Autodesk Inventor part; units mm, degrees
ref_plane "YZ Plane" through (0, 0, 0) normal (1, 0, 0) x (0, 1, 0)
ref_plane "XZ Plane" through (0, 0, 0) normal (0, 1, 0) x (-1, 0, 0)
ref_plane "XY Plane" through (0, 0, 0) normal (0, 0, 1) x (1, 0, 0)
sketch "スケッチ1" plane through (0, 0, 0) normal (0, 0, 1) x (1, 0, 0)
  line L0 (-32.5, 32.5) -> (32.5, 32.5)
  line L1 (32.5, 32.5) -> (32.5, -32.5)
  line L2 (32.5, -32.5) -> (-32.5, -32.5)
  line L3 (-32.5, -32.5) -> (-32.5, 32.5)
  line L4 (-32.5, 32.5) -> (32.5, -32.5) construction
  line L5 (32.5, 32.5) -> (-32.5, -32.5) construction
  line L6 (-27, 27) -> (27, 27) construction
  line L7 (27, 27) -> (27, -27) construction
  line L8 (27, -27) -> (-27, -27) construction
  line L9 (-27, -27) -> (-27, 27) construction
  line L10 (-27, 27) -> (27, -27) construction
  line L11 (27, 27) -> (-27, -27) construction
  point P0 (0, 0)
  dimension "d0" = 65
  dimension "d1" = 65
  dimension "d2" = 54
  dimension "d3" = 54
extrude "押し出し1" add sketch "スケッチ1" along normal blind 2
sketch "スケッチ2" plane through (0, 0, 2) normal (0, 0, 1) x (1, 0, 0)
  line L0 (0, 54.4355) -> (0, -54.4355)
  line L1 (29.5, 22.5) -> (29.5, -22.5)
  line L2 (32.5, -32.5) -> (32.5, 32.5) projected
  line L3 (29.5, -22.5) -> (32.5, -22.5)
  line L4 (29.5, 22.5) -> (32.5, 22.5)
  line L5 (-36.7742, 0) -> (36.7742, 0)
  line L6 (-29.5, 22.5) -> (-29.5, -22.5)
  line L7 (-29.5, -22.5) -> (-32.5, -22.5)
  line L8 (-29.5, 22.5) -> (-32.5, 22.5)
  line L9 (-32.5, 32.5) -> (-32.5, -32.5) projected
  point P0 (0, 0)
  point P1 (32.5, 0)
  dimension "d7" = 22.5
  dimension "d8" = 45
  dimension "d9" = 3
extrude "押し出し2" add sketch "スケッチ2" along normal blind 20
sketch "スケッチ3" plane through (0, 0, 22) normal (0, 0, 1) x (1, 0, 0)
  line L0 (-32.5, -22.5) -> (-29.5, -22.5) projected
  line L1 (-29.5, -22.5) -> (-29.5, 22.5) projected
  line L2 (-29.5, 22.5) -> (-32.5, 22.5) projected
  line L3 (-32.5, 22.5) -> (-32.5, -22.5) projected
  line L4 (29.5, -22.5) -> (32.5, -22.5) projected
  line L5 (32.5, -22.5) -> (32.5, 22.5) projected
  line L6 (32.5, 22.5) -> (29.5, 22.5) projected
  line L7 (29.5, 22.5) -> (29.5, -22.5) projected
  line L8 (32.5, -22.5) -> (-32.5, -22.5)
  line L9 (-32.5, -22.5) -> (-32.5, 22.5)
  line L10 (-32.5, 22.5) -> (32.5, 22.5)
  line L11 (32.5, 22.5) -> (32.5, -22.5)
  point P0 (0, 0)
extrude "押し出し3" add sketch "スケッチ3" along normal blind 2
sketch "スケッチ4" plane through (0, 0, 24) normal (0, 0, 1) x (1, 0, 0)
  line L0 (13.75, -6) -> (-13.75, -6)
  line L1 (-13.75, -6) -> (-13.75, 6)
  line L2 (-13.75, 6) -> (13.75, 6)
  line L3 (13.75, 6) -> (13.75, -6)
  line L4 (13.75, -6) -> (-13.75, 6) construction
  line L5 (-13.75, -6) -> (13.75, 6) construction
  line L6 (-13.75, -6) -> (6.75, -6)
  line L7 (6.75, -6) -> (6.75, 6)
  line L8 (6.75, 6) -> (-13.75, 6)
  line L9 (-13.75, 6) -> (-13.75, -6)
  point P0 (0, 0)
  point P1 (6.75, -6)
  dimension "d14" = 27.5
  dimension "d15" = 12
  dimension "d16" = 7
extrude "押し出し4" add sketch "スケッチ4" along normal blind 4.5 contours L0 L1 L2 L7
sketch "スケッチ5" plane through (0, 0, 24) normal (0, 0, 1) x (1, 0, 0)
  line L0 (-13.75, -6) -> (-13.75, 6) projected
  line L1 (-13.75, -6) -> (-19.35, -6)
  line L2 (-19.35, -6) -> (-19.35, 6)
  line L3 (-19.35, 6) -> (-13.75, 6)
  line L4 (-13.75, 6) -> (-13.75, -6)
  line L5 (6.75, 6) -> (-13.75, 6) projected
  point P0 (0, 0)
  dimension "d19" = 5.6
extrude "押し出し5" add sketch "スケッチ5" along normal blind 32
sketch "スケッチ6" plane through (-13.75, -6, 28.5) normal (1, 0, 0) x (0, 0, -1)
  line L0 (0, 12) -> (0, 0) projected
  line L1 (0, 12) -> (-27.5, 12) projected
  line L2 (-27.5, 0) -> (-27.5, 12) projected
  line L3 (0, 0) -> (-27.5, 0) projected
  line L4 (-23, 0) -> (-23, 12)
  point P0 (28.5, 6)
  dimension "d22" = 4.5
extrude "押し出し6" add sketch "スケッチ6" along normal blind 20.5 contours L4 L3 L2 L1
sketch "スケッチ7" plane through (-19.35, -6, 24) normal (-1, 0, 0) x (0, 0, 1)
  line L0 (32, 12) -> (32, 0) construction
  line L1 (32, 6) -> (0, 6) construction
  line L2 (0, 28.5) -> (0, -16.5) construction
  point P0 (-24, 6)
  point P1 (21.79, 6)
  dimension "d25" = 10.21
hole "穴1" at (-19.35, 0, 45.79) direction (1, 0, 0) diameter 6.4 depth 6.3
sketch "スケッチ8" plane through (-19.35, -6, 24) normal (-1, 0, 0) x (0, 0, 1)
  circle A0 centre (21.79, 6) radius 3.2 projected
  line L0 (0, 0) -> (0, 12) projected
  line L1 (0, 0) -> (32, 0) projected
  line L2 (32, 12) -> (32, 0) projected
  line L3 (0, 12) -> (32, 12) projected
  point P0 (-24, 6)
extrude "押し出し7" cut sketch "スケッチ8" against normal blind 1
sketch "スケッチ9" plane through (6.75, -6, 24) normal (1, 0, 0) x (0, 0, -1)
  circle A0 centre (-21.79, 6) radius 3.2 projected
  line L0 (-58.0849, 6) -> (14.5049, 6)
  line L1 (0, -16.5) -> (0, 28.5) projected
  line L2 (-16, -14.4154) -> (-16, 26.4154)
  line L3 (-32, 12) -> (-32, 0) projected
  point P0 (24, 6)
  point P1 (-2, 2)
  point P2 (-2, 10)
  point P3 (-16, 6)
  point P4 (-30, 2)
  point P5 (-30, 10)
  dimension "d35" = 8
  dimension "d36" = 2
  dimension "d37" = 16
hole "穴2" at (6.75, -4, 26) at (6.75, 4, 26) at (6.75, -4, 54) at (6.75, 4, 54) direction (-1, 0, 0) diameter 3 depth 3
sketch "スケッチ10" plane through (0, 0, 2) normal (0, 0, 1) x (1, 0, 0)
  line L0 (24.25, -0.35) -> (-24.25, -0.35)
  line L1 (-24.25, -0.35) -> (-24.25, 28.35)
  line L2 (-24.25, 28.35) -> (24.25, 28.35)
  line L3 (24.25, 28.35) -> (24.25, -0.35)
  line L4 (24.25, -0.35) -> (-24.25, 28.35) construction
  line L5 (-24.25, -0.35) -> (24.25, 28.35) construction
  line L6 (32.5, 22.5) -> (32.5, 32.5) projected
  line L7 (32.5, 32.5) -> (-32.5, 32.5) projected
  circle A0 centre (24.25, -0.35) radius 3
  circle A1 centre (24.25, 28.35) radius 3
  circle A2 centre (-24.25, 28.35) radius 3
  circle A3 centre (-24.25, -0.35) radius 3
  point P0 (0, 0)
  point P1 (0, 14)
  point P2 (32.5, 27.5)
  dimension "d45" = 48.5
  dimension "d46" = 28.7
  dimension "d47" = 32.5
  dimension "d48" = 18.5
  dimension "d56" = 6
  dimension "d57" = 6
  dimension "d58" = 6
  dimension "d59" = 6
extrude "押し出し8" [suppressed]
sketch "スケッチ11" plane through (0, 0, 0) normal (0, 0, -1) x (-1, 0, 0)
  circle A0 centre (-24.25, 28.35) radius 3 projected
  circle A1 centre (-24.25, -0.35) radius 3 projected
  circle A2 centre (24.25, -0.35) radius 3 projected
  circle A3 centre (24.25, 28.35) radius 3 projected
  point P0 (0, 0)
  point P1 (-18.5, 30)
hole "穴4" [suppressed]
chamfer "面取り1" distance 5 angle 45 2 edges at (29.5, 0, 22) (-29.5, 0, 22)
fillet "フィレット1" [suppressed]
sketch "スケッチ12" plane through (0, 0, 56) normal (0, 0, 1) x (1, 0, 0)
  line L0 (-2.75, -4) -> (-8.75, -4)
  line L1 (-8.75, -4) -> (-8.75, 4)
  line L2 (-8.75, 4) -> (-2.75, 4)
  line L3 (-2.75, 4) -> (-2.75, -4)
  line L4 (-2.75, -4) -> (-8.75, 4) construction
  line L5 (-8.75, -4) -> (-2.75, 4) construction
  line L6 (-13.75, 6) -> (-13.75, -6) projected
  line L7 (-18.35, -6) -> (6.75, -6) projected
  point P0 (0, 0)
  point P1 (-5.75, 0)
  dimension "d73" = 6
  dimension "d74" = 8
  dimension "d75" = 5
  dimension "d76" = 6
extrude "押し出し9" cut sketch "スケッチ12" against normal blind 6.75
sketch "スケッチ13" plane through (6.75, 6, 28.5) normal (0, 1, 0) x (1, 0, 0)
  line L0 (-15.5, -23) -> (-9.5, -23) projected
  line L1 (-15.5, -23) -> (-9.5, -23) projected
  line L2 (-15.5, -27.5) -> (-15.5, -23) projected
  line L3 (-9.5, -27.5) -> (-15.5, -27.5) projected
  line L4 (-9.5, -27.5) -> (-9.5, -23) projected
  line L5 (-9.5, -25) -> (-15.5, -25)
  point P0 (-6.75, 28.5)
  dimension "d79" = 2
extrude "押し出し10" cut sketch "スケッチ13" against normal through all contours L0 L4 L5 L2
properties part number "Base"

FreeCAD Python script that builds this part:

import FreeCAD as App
import Part
import Sketcher
from FreeCAD import Vector


def edges_at(feature, points):
    """Names of the edges that pass closest to the given points."""
    edges = feature.Shape.Edges
    near = lambda p: min(range(len(edges)), key=lambda i: edges[i].distToShape(Part.Vertex(*p))[0])
    return sorted({f"Edge{near(p) + 1}" for p in points})


def add_polygon(sketch, points):
    """Adds a closed chain of lines whose ends are joined by coincident constraints."""
    first, n = sketch.GeometryCount, len(points)
    for a, b in zip(points, points[1:] + points[:1]):
        sketch.addGeometry(Part.LineSegment(App.Vector(*a, 0), App.Vector(*b, 0)), False)
    for i in range(n):
        sketch.addConstraint(Sketcher.Constraint("Coincident", first + i, 2, first + (i + 1) % n, 1))

doc = App.newDocument("Part")
body = doc.addObject("PartDesign::Body", "Body")

# Sketch on XY plane
sketch1 = body.newObject("Sketcher::SketchObject", "Sketch")
sketch1.AttachmentSupport = (doc.getObject("XY_Plane"), [""])
sketch1.MapMode = "FlatFace"
add_polygon(sketch1, [(32, 32), (-32, 32), (-32, -32), (32, -32)])  # lines 0-3
sketch1.addConstraint(Sketcher.Constraint("Horizontal", 0))
sketch1.addConstraint(Sketcher.Constraint("Vertical", 1))
sketch1.addConstraint(Sketcher.Constraint("Horizontal", 2))
sketch1.addConstraint(Sketcher.Constraint("Vertical", 3))
sketch1.addConstraint(Sketcher.Constraint("Symmetric", 0, 2, 2, 2, -1, 1))
sketch1.addConstraint(Sketcher.Constraint("Equal", 2, 1))
sketch1.addConstraint(Sketcher.Constraint("DistanceX", 0, 2, 0, 1, 65.0))
pad1 = body.newObject("PartDesign::Pad", "Pad")
pad1.Profile = sketch1
pad1.Length = 2

# Sketch on XY plane
sketch2 = body.newObject("Sketcher::SketchObject", "Sketch001")
sketch2.AttachmentSupport = (doc.getObject("XY_Plane"), [""])
sketch2.MapMode = "FlatFace"
sketch2.AttachmentOffset = App.Placement(Vector(0, 0, 2), App.Rotation())
add_polygon(sketch2, [(32.5, 22.5), (29.5, 22.5), (29.5, -22.5), (32.5, -22.5)])  # lines 0-3
add_polygon(sketch2, [(-29.5, -22.5), (-29.5, 22.5), (-32.5, 22.5), (-32.5, -22.5)])  # lines 4-7
sketch2.addConstraint(Sketcher.Constraint("Horizontal", 0))
sketch2.addConstraint(Sketcher.Constraint("Vertical", 1))
sketch2.addConstraint(Sketcher.Constraint("Horizontal", 2))
sketch2.addConstraint(Sketcher.Constraint("Vertical", 3))
sketch2.addConstraint(Sketcher.Constraint("Vertical", 4))
sketch2.addConstraint(Sketcher.Constraint("Horizontal", 5))
sketch2.addConstraint(Sketcher.Constraint("Vertical", 6))
sketch2.addConstraint(Sketcher.Constraint("Horizontal", 7))
sketch2.addConstraint(Sketcher.Constraint("Symmetric", 1, 2, 4, 2, -1, 1))
sketch2.addConstraint(Sketcher.Constraint("Symmetric", 3, 2, 6, 2, -1, 1))
sketch2.addConstraint(Sketcher.Constraint("Horizontal", 3, 2, 4, 2))
sketch2.addConstraint(Sketcher.Constraint("DistanceX", 0, 2, 0, 1, 3.0))
sketch2.addConstraint(Sketcher.Constraint("DistanceY", 1, 2, 1, 1, 45.0))
sketch2.addConstraint(Sketcher.Constraint("DistanceX", 4, 2, 0, 2, 59.0))
pad2 = body.newObject("PartDesign::Pad", "Pad001")
pad2.Profile = sketch2
pad2.Length = 20

# Sketch on XY plane
sketch3 = body.newObject("Sketcher::SketchObject", "Sketch002")
sketch3.AttachmentSupport = (doc.getObject("XY_Plane"), [""])
sketch3.MapMode = "FlatFace"
sketch3.AttachmentOffset = App.Placement(Vector(0, 0, 22), App.Rotation())
add_polygon(sketch3, [(-32, 22), (-32, -22), (32, -22), (32, 22)])  # lines 0-3
sketch3.addConstraint(Sketcher.Constraint("Vertical", 0))
sketch3.addConstraint(Sketcher.Constraint("Horizontal", 1))
sketch3.addConstraint(Sketcher.Constraint("Vertical", 2))
sketch3.addConstraint(Sketcher.Constraint("Horizontal", 3))
sketch3.addConstraint(Sketcher.Constraint("Symmetric", 0, 2, 2, 2, -1, 1))
sketch3.addConstraint(Sketcher.Constraint("DistanceX", 1, 1, 1, 2, 65.0))
sketch3.addConstraint(Sketcher.Constraint("DistanceY", 0, 2, 0, 1, 45.0))
pad3 = body.newObject("PartDesign::Pad", "Pad002")
pad3.Profile = sketch3
pad3.Length = 2

# Sketch on XY plane
sketch4 = body.newObject("Sketcher::SketchObject", "Sketch003")
sketch4.AttachmentSupport = (doc.getObject("XY_Plane"), [""])
sketch4.MapMode = "FlatFace"
sketch4.AttachmentOffset = App.Placement(Vector(0, 0, 24), App.Rotation())
add_polygon(sketch4, [(-14, -6), (7, -6), (7, 6), (-14, 6)])  # lines 0-3
sketch4.addConstraint(Sketcher.Constraint("Horizontal", 0))
sketch4.addConstraint(Sketcher.Constraint("Vertical", 1))
sketch4.addConstraint(Sketcher.Constraint("Horizontal", 2))
sketch4.addConstraint(Sketcher.Constraint("Vertical", 3))
sketch4.addConstraint(Sketcher.Constraint("DistanceY", 1, 1, 1, 2, 12.0))
sketch4.addConstraint(Sketcher.Constraint("DistanceX", 0, 1, 0, 2, 20.5))
sketch4.addConstraint(Sketcher.Constraint("DistanceY", 0, 2, -1, 1, 6.0))
sketch4.addConstraint(Sketcher.Constraint("DistanceX", -1, 1, 0, 2, 6.75))
pad4 = body.newObject("PartDesign::Pad", "Pad003")
pad4.Profile = sketch4
pad4.Length = 4.5

# Sketch on XY plane
sketch5 = body.newObject("Sketcher::SketchObject", "Sketch004")
sketch5.AttachmentSupport = (doc.getObject("XY_Plane"), [""])
sketch5.MapMode = "FlatFace"
sketch5.AttachmentOffset = App.Placement(Vector(0, 0, 24), App.Rotation())
add_polygon(sketch5, [(-19, -6), (-14, -6), (-14, 6), (-19, 6)])  # lines 0-3
sketch5.addConstraint(Sketcher.Constraint("Horizontal", 0))
sketch5.addConstraint(Sketcher.Constraint("Vertical", 1))
sketch5.addConstraint(Sketcher.Constraint("Horizontal", 2))
sketch5.addConstraint(Sketcher.Constraint("Vertical", 3))
sketch5.addConstraint(Sketcher.Constraint("DistanceX", 0, 1, 0, 2, 5.6))
sketch5.addConstraint(Sketcher.Constraint("DistanceY", 1, 1, 1, 2, 12.0))
sketch5.addConstraint(Sketcher.Constraint("DistanceY", 0, 2, -1, 1, 6.0))
sketch5.addConstraint(Sketcher.Constraint("DistanceX", 0, 2, -1, 1, 13.75))
pad5 = body.newObject("PartDesign::Pad", "Pad004")
pad5.Profile = sketch5
pad5.Length = 32

# Sketch on YZ plane
sketch6 = body.newObject("Sketcher::SketchObject", "Sketch005")
sketch6.AttachmentSupport = (doc.getObject("YZ_Plane"), [""])
sketch6.MapMode = "FlatFace"
sketch6.AttachmentOffset = App.Placement(Vector(0, 0, -13.75), App.Rotation())
add_polygon(sketch6, [(-6, 51.5), (6, 51.5), (6, 56), (-6, 56)])  # lines 0-3
sketch6.addConstraint(Sketcher.Constraint("Horizontal", 0))
sketch6.addConstraint(Sketcher.Constraint("Vertical", 1))
sketch6.addConstraint(Sketcher.Constraint("Horizontal", 2))
sketch6.addConstraint(Sketcher.Constraint("Vertical", 3))
sketch6.addConstraint(Sketcher.Constraint("DistanceY", 1, 1, 1, 2, 4.5))
sketch6.addConstraint(Sketcher.Constraint("DistanceX", 0, 1, 0, 2, 12.0))
sketch6.addConstraint(Sketcher.Constraint("DistanceX", -1, 1, 0, 2, 6.0))
sketch6.addConstraint(Sketcher.Constraint("DistanceY", -1, 1, 1, 2, 56.0))
pad6 = body.newObject("PartDesign::Pad", "Pad005")
pad6.Profile = sketch6
pad6.Length = 20.5

# Sketch on YZ plane
sketch7 = body.newObject("Sketcher::SketchObject", "Sketch006")
sketch7.AttachmentSupport = (doc.getObject("YZ_Plane"), [""])
sketch7.MapMode = "FlatFace"
sketch7.AttachmentOffset = App.Placement(Vector(0, 0, -19.35), App.Rotation())
sketch7.addGeometry(Part.Circle(Vector(0, 45.8, 0), Vector(0, 0, 1), 3.2), False)
sketch7.addConstraint(Sketcher.Constraint("PointOnObject", 0, 3, -2))
sketch7.addConstraint(Sketcher.Constraint("Diameter", 0, 6.4))
sketch7.addConstraint(Sketcher.Constraint("DistanceY", -1, 1, 0, 3, 45.79))
doc.recompute()
hole = body.newObject("PartDesign::Hole", "Hole")
hole.Profile = sketch7
hole.ThreadType = "None"
hole.Diameter = 6.4
hole.DepthType = "Dimension"
hole.Depth = 6.3
hole.DrillPoint = "Flat"
hole.Reversed = True

# Sketch on YZ plane
sketch8 = body.newObject("Sketcher::SketchObject", "Sketch007")
sketch8.AttachmentSupport = (doc.getObject("YZ_Plane"), [""])
sketch8.MapMode = "FlatFace"
sketch8.AttachmentOffset = App.Placement(Vector(0, 0, -19.35), App.Rotation())
add_polygon(sketch8, [(6, 24), (-6, 24), (-6, 56), (6, 56)])  # lines 0-3
sketch8.addGeometry(Part.Circle(Vector(0, 45.8, 0), Vector(0, 0, 1), 3.2), False)  # 4
sketch8.addConstraint(Sketcher.Constraint("Horizontal", 0))
sketch8.addConstraint(Sketcher.Constraint("Vertical", 1))
sketch8.addConstraint(Sketcher.Constraint("Horizontal", 2))
sketch8.addConstraint(Sketcher.Constraint("Vertical", 3))
sketch8.addConstraint(Sketcher.Constraint("PointOnObject", 4, 3, -2))
sketch8.addConstraint(Sketcher.Constraint("Diameter", 4, 6.4))
sketch8.addConstraint(Sketcher.Constraint("DistanceX", 0, 2, 0, 1, 12.0))
sketch8.addConstraint(Sketcher.Constraint("DistanceY", 1, 1, 1, 2, 32.0))
sketch8.addConstraint(Sketcher.Constraint("DistanceX", 0, 2, -1, 1, 6.0))
sketch8.addConstraint(Sketcher.Constraint("DistanceY", -1, 1, 0, 2, 24.0))
sketch8.addConstraint(Sketcher.Constraint("DistanceY", -1, 1, 4, 3, 45.79))
pocket1 = body.newObject("PartDesign::Pocket", "Pocket")
pocket1.Profile = sketch8
pocket1.Length = 1
pocket1.Reversed = True

# Sketch on YZ plane
sketch9 = body.newObject("Sketcher::SketchObject", "Sketch008")
sketch9.AttachmentSupport = (doc.getObject("YZ_Plane"), [""])
sketch9.MapMode = "FlatFace"
sketch9.AttachmentOffset = App.Placement(Vector(0, 0, 6.75), App.Rotation())
sketch9.addGeometry(Part.Circle(Vector(-4, 26, 0), Vector(0, 0, 1), 1.5), False)
sketch9.addGeometry(Part.Circle(Vector(4, 26, 0), Vector(0, 0, 1), 1.5), False)
sketch9.addGeometry(Part.Circle(Vector(-4, 54, 0), Vector(0, 0, 1), 1.5), False)
sketch9.addGeometry(Part.Circle(Vector(4, 54, 0), Vector(0, 0, 1), 1.5), False)
sketch9.addConstraint(Sketcher.Constraint("Equal", 0, 1))
sketch9.addConstraint(Sketcher.Constraint("Equal", 1, 2))
sketch9.addConstraint(Sketcher.Constraint("Equal", 2, 3))
sketch9.addConstraint(Sketcher.Constraint("Symmetric", 0, 3, 1, 3, -2))
sketch9.addConstraint(Sketcher.Constraint("Symmetric", 2, 3, 3, 3, -2))
sketch9.addConstraint(Sketcher.Constraint("Vertical", 0, 3, 2, 3))
sketch9.addConstraint(Sketcher.Constraint("Diameter", 0, 3.0))
sketch9.addConstraint(Sketcher.Constraint("DistanceX", 0, 3, -1, 1, 4.0))
sketch9.addConstraint(Sketcher.Constraint("DistanceY", -1, 1, 0, 3, 26.0))
sketch9.addConstraint(Sketcher.Constraint("DistanceY", -1, 1, 2, 3, 54.0))
doc.recompute()
hole2 = body.newObject("PartDesign::Hole", "Hole001")
hole2.Profile = sketch9
hole2.ThreadType = "None"
hole2.Diameter = 3
hole2.DepthType = "Dimension"
hole2.Depth = 3
hole2.DrillPoint = "Flat"
doc.recompute()

chamfer = body.newObject("PartDesign::Chamfer", "Chamfer")
chamfer.Base = (hole2, edges_at(hole2, [(29.5, 0, 22), (-29.5, 0, 22)]))
chamfer.Size = 5

# Sketch on XY plane
sketch10 = body.newObject("Sketcher::SketchObject", "Sketch009")
sketch10.AttachmentSupport = (doc.getObject("XY_Plane"), [""])
sketch10.MapMode = "FlatFace"
sketch10.AttachmentOffset = App.Placement(Vector(0, 0, 56), App.Rotation())
add_polygon(sketch10, [(-9, -4), (-3, -4), (-3, 4), (-9, 4)])  # lines 0-3
sketch10.addConstraint(Sketcher.Constraint("Horizontal", 0))
sketch10.addConstraint(Sketcher.Constraint("Vertical", 1))
sketch10.addConstraint(Sketcher.Constraint("Horizontal", 2))
sketch10.addConstraint(Sketcher.Constraint("Vertical", 3))
sketch10.addConstraint(Sketcher.Constraint("DistanceX", 0, 1, 0, 2, 6.0))
sketch10.addConstraint(Sketcher.Constraint("DistanceY", 1, 1, 1, 2, 8.0))
sketch10.addConstraint(Sketcher.Constraint("DistanceY", 0, 2, -1, 1, 4.0))
sketch10.addConstraint(Sketcher.Constraint("DistanceX", 0, 2, -1, 1, 2.75))
pocket2 = body.newObject("PartDesign::Pocket", "Pocket001")
pocket2.Profile = sketch10
pocket2.Length = 6.75

# Sketch on XZ plane
sketch11 = body.newObject("Sketcher::SketchObject", "Sketch010")
sketch11.AttachmentSupport = (doc.getObject("XZ_Plane"), [""])
sketch11.MapMode = "FlatFace"
sketch11.AttachmentOffset = App.Placement(Vector(0, 0, -6), App.Rotation())
add_polygon(sketch11, [(-2.8, 51.5), (-8.8, 51.5), (-8.8, 53.5), (-2.8, 53.5)])  # lines 0-3
sketch11.addConstraint(Sketcher.Constraint("Horizontal", 0))
sketch11.addConstraint(Sketcher.Constraint("Vertical", 1))
sketch11.addConstraint(Sketcher.Constraint("Horizontal", 2))
sketch11.addConstraint(Sketcher.Constraint("Vertical", 3))
sketch11.addConstraint(Sketcher.Constraint("DistanceY", 1, 1, 1, 2, 2.0))
sketch11.addConstraint(Sketcher.Constraint("DistanceX", 0, 2, 0, 1, 6.0))
sketch11.addConstraint(Sketcher.Constraint("DistanceY", -1, 1, 0, 2, 51.5))
sketch11.addConstraint(Sketcher.Constraint("DistanceX", 0, 2, -1, 1, 8.75))
pocket3 = body.newObject("PartDesign::Pocket", "Pocket002")
pocket3.Profile = sketch11
pocket3.Type = "ThroughAll"
pocket3.Reversed = True

doc.recompute()
